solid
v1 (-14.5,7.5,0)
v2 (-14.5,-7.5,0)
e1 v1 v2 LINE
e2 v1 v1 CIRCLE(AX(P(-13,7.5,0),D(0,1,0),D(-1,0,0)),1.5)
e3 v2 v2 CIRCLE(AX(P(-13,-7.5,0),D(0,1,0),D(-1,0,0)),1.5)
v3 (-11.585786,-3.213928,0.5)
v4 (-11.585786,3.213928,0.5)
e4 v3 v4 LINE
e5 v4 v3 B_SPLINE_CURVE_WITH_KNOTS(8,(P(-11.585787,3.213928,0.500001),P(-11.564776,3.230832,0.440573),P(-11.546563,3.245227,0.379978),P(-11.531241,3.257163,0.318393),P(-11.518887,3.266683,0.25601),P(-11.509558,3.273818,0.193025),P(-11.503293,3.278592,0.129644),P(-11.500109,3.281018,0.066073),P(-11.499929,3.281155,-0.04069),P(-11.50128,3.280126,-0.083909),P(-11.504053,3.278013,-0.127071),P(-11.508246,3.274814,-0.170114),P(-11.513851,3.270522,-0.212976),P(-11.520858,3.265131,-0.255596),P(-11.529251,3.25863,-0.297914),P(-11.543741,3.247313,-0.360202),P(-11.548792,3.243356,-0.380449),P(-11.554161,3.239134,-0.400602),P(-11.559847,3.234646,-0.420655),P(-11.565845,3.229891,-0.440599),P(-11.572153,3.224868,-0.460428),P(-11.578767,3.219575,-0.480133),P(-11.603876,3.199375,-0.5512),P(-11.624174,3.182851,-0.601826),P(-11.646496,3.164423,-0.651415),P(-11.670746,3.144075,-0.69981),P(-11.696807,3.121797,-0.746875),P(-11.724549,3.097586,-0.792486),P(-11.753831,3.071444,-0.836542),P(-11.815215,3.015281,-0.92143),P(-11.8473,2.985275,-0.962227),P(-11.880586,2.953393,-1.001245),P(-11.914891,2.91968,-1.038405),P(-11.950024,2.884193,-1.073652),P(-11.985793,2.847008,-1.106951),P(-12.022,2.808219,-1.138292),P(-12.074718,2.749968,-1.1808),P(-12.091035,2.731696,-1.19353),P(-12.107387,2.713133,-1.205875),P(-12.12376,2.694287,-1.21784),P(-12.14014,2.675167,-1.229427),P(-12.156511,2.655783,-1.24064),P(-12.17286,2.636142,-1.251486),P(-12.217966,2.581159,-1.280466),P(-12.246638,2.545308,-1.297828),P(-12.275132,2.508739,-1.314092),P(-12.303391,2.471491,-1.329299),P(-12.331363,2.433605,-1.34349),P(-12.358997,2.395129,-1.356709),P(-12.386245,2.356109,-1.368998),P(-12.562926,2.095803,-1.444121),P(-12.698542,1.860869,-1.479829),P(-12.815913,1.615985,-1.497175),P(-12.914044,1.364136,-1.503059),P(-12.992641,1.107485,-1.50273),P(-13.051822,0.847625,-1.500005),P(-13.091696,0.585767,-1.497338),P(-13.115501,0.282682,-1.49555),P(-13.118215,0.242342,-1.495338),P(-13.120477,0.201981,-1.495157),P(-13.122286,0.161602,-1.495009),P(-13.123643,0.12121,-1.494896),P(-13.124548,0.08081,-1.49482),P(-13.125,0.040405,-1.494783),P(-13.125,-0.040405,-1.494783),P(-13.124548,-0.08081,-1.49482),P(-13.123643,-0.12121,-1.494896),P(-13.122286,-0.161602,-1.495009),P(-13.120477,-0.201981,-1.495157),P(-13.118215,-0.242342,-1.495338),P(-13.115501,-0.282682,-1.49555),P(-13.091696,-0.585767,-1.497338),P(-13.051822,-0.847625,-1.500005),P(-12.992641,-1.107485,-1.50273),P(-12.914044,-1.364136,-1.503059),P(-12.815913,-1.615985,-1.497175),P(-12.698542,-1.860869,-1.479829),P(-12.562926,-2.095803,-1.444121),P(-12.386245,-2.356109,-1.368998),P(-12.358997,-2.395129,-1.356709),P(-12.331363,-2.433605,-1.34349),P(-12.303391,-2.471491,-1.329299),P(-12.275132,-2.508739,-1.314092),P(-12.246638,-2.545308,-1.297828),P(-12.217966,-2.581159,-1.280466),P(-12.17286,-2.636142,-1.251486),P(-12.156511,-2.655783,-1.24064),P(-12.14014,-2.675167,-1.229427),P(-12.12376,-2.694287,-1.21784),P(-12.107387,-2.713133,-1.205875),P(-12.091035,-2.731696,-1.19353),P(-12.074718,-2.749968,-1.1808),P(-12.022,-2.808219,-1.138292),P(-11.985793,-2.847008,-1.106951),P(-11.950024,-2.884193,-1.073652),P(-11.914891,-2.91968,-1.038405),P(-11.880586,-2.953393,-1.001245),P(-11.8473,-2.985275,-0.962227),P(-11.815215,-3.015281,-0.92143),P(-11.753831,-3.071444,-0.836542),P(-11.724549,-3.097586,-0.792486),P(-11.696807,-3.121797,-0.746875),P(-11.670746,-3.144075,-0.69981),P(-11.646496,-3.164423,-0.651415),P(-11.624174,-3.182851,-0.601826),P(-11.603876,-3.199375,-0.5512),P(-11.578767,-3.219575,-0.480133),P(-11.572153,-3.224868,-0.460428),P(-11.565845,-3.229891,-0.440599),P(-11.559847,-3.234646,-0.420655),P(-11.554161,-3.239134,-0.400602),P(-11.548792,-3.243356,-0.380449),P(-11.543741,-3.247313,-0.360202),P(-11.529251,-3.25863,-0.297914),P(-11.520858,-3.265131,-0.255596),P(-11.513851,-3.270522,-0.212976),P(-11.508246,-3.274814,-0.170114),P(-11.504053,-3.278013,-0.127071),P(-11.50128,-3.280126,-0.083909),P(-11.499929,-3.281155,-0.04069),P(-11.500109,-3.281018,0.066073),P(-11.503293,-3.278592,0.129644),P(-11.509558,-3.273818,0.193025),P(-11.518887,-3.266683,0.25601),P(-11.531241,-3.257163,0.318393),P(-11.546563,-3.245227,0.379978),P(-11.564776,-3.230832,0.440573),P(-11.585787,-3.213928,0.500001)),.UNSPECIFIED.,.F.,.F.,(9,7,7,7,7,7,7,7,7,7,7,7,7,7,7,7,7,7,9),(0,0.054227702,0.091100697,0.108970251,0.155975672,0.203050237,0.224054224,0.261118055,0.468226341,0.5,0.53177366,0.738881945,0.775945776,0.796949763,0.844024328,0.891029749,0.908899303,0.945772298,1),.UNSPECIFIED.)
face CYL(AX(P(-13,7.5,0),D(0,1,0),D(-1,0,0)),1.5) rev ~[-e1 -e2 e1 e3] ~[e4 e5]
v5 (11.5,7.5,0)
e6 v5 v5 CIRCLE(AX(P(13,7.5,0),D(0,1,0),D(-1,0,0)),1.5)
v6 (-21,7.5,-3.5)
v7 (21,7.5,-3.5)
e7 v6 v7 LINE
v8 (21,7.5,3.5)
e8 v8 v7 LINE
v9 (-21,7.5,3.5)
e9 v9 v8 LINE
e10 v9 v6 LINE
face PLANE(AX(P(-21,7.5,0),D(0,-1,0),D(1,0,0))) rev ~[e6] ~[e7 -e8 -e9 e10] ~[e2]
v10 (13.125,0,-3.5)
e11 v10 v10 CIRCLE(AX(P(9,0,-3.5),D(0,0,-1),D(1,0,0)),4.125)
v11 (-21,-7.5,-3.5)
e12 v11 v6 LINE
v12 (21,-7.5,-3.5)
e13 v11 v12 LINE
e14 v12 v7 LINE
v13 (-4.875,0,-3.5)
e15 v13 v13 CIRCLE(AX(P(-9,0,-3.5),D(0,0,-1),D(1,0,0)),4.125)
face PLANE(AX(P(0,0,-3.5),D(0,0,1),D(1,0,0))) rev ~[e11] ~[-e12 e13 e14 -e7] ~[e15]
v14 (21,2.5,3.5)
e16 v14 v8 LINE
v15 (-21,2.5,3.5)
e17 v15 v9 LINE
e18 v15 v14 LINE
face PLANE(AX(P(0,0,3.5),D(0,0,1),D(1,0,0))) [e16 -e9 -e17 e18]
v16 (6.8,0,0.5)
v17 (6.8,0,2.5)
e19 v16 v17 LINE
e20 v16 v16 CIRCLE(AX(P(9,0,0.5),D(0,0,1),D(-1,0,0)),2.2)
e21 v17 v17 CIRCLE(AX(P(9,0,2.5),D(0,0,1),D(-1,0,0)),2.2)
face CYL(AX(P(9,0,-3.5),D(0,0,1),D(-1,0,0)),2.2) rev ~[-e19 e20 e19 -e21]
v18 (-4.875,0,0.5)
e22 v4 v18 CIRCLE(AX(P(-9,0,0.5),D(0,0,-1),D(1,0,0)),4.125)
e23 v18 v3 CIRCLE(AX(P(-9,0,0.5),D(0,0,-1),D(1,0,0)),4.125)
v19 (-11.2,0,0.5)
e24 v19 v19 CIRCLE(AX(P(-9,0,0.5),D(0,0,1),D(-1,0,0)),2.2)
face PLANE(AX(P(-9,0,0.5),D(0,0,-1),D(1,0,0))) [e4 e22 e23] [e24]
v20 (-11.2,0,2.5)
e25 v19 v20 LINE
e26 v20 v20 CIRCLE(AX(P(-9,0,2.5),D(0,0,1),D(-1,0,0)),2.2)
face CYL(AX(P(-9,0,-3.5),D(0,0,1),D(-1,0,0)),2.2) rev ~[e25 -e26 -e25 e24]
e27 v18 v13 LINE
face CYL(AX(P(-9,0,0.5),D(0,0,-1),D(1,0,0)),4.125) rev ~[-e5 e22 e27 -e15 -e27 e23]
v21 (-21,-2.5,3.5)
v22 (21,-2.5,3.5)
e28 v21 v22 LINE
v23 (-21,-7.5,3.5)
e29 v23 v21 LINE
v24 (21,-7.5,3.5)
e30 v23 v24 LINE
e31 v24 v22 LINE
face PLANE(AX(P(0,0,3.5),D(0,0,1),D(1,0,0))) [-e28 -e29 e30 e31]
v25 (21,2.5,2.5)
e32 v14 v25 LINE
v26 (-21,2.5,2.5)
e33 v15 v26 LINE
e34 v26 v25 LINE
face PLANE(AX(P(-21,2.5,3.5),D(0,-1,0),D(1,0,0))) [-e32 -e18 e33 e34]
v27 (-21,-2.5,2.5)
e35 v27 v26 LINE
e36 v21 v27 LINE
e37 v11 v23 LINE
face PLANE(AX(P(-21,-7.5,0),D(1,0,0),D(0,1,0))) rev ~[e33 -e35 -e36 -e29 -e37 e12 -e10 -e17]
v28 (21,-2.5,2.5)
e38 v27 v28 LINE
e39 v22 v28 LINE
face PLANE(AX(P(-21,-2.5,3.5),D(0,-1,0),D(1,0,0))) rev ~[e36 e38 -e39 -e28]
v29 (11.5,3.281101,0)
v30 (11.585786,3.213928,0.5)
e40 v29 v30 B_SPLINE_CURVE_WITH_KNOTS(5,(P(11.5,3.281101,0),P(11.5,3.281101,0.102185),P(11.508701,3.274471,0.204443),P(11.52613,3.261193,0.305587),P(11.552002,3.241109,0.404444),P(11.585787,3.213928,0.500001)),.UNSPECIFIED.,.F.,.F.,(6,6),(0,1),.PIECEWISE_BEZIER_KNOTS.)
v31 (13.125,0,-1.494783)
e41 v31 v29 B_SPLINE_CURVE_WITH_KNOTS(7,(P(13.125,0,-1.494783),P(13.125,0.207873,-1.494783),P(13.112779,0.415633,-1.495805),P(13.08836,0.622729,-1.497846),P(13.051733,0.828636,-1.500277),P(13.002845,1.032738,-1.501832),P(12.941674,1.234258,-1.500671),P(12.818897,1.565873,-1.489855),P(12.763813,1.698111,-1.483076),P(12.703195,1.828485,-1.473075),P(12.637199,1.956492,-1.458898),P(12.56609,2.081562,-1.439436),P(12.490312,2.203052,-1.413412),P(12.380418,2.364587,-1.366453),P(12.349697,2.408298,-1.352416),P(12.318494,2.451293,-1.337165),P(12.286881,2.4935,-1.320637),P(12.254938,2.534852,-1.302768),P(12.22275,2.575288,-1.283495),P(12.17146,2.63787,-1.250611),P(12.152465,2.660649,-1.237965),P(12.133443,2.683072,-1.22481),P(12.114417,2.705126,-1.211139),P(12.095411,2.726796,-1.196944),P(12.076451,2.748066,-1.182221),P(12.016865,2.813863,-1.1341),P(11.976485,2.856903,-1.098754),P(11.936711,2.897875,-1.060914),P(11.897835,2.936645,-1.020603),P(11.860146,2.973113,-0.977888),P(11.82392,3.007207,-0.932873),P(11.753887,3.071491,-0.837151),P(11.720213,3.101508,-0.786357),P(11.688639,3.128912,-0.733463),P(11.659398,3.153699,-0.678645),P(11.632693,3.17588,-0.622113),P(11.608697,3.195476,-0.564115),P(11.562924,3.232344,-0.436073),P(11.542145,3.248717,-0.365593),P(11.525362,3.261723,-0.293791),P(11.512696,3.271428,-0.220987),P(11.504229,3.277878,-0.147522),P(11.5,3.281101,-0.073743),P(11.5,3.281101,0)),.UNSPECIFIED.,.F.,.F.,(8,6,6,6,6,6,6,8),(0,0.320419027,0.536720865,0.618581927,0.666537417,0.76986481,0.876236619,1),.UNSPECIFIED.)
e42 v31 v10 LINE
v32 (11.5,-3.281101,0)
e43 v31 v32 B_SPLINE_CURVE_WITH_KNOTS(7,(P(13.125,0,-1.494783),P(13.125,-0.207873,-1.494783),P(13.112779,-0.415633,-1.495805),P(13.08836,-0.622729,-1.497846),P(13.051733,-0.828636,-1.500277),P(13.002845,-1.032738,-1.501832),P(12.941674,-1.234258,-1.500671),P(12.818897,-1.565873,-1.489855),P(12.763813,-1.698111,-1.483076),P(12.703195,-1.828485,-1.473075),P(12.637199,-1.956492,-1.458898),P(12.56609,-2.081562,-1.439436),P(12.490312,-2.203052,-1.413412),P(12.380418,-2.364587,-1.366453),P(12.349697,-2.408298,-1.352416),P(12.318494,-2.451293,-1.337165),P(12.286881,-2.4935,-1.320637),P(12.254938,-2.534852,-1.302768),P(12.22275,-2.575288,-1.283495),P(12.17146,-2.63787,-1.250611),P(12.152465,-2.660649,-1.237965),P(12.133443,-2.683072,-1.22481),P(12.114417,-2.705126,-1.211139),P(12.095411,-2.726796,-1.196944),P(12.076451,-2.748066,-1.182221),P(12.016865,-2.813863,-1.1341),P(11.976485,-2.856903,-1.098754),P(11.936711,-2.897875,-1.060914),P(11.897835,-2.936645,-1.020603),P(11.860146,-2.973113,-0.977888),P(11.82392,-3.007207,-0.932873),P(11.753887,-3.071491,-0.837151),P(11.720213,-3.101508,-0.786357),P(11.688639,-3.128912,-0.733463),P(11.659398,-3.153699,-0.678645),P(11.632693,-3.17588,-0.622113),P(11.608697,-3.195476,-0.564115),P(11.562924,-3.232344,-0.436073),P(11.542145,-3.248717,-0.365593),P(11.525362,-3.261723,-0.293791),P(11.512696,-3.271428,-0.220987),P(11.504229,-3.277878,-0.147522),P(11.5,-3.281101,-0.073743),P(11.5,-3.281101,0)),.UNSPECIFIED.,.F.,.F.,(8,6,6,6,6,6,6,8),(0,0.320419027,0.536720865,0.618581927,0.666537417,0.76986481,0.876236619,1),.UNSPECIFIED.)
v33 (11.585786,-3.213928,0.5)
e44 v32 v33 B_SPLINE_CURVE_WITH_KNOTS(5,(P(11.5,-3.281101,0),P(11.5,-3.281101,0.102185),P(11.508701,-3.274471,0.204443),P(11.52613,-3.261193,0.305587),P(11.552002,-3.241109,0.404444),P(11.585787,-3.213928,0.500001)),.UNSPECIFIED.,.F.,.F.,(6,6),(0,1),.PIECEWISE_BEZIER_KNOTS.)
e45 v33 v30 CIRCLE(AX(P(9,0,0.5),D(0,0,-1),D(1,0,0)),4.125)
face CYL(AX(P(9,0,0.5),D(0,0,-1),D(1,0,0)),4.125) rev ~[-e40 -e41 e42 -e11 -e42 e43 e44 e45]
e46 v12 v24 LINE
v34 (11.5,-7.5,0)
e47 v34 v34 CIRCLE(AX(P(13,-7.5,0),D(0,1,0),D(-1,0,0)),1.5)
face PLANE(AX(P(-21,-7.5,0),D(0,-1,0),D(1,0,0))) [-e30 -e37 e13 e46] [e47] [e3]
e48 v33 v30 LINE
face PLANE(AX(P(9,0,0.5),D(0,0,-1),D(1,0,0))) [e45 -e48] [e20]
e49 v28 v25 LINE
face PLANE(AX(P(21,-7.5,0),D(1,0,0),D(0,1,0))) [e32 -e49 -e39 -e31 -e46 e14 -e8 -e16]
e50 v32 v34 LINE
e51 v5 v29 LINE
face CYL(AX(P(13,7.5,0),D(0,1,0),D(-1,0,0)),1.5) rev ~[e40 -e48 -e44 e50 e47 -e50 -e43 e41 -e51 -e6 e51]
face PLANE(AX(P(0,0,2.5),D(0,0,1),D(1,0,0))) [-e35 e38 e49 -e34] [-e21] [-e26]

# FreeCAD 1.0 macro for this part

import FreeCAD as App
import Part
import Sketcher

V = App.Vector
Q = App.Units.Quantity

doc = App.newDocument("Part")
body = doc.addObject("PartDesign::Body", "Body")

# Sketch on XY plane
sketch1 = body.newObject("Sketcher::SketchObject", "Sketch")
sketch1.AttachmentSupport = (doc.getObject("XY_Plane"), [""])
sketch1.MapMode = "FlatFace"
sketch1.addGeometry(Part.LineSegment(V(-21, 8, 0), V(-21, -8, 0)), False)
sketch1.addGeometry(Part.LineSegment(V(-21, -8, 0), V(21, -8, 0)), False)
sketch1.addGeometry(Part.LineSegment(V(21, -8, 0), V(21, 8, 0)), False)
sketch1.addGeometry(Part.LineSegment(V(21, 8, 0), V(-21, 8, 0)), False)
sketch1.addConstraint(Sketcher.Constraint("Coincident", 0, 2, 1, 1))
sketch1.addConstraint(Sketcher.Constraint("Coincident", 1, 2, 2, 1))
sketch1.addConstraint(Sketcher.Constraint("Coincident", 2, 2, 3, 1))
sketch1.addConstraint(Sketcher.Constraint("Coincident", 3, 2, 0, 1))
sketch1.addConstraint(Sketcher.Constraint("Vertical", 0))
sketch1.addConstraint(Sketcher.Constraint("Horizontal", 1))
sketch1.addConstraint(Sketcher.Constraint("Vertical", 2))
sketch1.addConstraint(Sketcher.Constraint("Horizontal", 3))
sketch1.addConstraint(Sketcher.Constraint("Symmetric", 0, 2, 2, 2, -1, 1))
sketch1.addConstraint(Sketcher.Constraint("DistanceX", 1, 1, 1, 2, Q("42 mm")))
sketch1.addConstraint(Sketcher.Constraint("DistanceY", 0, 2, 0, 1, Q("15 mm")))
pad1 = body.newObject("PartDesign::Pad", "Pad")
pad1.Profile = sketch1
pad1.Length = 7
pad1.Midplane = True

# Sketch on XY plane
sketch2 = body.newObject("Sketcher::SketchObject", "Sketch001")
sketch2.AttachmentSupport = (doc.getObject("XY_Plane"), [""])
sketch2.MapMode = "FlatFace"
sketch2.AttachmentOffset = App.Placement(V(0, 0, 3.5), App.Rotation())
sketch2.addGeometry(Part.LineSegment(V(-21, 2, 0), V(-21, -2, 0)), False)
sketch2.addGeometry(Part.LineSegment(V(-21, -2, 0), V(21, -2, 0)), False)
sketch2.addGeometry(Part.LineSegment(V(21, -2, 0), V(21, 2, 0)), False)
sketch2.addGeometry(Part.LineSegment(V(21, 2, 0), V(-21, 2, 0)), False)
sketch2.addConstraint(Sketcher.Constraint("Coincident", 0, 2, 1, 1))
sketch2.addConstraint(Sketcher.Constraint("Coincident", 1, 2, 2, 1))
sketch2.addConstraint(Sketcher.Constraint("Coincident", 2, 2, 3, 1))
sketch2.addConstraint(Sketcher.Constraint("Coincident", 3, 2, 0, 1))
sketch2.addConstraint(Sketcher.Constraint("Vertical", 0))
sketch2.addConstraint(Sketcher.Constraint("Horizontal", 1))
sketch2.addConstraint(Sketcher.Constraint("Vertical", 2))
sketch2.addConstraint(Sketcher.Constraint("Horizontal", 3))
sketch2.addConstraint(Sketcher.Constraint("Symmetric", 0, 2, 2, 2, -1, 1))
sketch2.addConstraint(Sketcher.Constraint("DistanceX", 1, 1, 1, 2, Q("42 mm")))
sketch2.addConstraint(Sketcher.Constraint("DistanceY", 0, 2, 0, 1, Q("5 mm")))
pocket1 = body.newObject("PartDesign::Pocket", "Pocket")
pocket1.Profile = sketch2
pocket1.Length = 1

# Sketch on XY plane
sketch3 = body.newObject("Sketcher::SketchObject", "Sketch002")
sketch3.AttachmentSupport = (doc.getObject("XY_Plane"), [""])
sketch3.MapMode = "FlatFace"
sketch3.AttachmentOffset = App.Placement(V(0, 0, -3.5), App.Rotation())
sketch3.addGeometry(Part.Circle(V(9, 0, 0), V(0, 0, 1), 2.2), False)
sketch3.addGeometry(Part.Circle(V(-9, 0, 0), V(0, 0, 1), 2.2), False)
sketch3.addConstraint(Sketcher.Constraint("Equal", 0, 1))
sketch3.addConstraint(Sketcher.Constraint("Symmetric", 0, 3, 1, 3, -1, 1))
sketch3.addConstraint(Sketcher.Constraint("PointOnObject", 0, 3, -1))
sketch3.addConstraint(Sketcher.Constraint("Diameter", 0, Q("4.4 mm")))
sketch3.addConstraint(Sketcher.Constraint("DistanceX", -1, 1, 0, 3, Q("9 mm")))
doc.recompute()
hole = body.newObject("PartDesign::Hole", "Hole")
hole.Profile = sketch3
hole.ThreadType = "None"
hole.Diameter = 4.4
hole.DepthType = "ThroughAll"
hole.HoleCutType = "Counterbore"
hole.HoleCutDiameter = 8.25
hole.HoleCutDepth = 4
hole.Reversed = True

# Sketch on XZ plane
sketch4 = body.newObject("Sketcher::SketchObject", "Sketch003")
sketch4.AttachmentSupport = (doc.getObject("XZ_Plane"), [""])
sketch4.MapMode = "FlatFace"
sketch4.AttachmentOffset = App.Placement(V(0, 0, -7.5), App.Rotation())
sketch4.addGeometry(Part.Circle(V(13, 0, 0), V(0, 0, 1), 1.5), False)
sketch4.addGeometry(Part.Circle(V(-13, 0, 0), V(0, 0, 1), 1.5), False)
sketch4.addConstraint(Sketcher.Constraint("Equal", 0, 1))
sketch4.addConstraint(Sketcher.Constraint("Symmetric", 0, 3, 1, 3, -1, 1))
sketch4.addConstraint(Sketcher.Constraint("PointOnObject", 0, 3, -1))
sketch4.addConstraint(Sketcher.Constraint("Diameter", 0, Q("3 mm")))
sketch4.addConstraint(Sketcher.Constraint("DistanceX", -1, 1, 0, 3, Q("13 mm")))
pocket2 = body.newObject("PartDesign::Pocket", "Pocket001")
pocket2.Profile = sketch4
pocket2.Type = "ThroughAll"
pocket2.Reversed = True

doc.recompute()
